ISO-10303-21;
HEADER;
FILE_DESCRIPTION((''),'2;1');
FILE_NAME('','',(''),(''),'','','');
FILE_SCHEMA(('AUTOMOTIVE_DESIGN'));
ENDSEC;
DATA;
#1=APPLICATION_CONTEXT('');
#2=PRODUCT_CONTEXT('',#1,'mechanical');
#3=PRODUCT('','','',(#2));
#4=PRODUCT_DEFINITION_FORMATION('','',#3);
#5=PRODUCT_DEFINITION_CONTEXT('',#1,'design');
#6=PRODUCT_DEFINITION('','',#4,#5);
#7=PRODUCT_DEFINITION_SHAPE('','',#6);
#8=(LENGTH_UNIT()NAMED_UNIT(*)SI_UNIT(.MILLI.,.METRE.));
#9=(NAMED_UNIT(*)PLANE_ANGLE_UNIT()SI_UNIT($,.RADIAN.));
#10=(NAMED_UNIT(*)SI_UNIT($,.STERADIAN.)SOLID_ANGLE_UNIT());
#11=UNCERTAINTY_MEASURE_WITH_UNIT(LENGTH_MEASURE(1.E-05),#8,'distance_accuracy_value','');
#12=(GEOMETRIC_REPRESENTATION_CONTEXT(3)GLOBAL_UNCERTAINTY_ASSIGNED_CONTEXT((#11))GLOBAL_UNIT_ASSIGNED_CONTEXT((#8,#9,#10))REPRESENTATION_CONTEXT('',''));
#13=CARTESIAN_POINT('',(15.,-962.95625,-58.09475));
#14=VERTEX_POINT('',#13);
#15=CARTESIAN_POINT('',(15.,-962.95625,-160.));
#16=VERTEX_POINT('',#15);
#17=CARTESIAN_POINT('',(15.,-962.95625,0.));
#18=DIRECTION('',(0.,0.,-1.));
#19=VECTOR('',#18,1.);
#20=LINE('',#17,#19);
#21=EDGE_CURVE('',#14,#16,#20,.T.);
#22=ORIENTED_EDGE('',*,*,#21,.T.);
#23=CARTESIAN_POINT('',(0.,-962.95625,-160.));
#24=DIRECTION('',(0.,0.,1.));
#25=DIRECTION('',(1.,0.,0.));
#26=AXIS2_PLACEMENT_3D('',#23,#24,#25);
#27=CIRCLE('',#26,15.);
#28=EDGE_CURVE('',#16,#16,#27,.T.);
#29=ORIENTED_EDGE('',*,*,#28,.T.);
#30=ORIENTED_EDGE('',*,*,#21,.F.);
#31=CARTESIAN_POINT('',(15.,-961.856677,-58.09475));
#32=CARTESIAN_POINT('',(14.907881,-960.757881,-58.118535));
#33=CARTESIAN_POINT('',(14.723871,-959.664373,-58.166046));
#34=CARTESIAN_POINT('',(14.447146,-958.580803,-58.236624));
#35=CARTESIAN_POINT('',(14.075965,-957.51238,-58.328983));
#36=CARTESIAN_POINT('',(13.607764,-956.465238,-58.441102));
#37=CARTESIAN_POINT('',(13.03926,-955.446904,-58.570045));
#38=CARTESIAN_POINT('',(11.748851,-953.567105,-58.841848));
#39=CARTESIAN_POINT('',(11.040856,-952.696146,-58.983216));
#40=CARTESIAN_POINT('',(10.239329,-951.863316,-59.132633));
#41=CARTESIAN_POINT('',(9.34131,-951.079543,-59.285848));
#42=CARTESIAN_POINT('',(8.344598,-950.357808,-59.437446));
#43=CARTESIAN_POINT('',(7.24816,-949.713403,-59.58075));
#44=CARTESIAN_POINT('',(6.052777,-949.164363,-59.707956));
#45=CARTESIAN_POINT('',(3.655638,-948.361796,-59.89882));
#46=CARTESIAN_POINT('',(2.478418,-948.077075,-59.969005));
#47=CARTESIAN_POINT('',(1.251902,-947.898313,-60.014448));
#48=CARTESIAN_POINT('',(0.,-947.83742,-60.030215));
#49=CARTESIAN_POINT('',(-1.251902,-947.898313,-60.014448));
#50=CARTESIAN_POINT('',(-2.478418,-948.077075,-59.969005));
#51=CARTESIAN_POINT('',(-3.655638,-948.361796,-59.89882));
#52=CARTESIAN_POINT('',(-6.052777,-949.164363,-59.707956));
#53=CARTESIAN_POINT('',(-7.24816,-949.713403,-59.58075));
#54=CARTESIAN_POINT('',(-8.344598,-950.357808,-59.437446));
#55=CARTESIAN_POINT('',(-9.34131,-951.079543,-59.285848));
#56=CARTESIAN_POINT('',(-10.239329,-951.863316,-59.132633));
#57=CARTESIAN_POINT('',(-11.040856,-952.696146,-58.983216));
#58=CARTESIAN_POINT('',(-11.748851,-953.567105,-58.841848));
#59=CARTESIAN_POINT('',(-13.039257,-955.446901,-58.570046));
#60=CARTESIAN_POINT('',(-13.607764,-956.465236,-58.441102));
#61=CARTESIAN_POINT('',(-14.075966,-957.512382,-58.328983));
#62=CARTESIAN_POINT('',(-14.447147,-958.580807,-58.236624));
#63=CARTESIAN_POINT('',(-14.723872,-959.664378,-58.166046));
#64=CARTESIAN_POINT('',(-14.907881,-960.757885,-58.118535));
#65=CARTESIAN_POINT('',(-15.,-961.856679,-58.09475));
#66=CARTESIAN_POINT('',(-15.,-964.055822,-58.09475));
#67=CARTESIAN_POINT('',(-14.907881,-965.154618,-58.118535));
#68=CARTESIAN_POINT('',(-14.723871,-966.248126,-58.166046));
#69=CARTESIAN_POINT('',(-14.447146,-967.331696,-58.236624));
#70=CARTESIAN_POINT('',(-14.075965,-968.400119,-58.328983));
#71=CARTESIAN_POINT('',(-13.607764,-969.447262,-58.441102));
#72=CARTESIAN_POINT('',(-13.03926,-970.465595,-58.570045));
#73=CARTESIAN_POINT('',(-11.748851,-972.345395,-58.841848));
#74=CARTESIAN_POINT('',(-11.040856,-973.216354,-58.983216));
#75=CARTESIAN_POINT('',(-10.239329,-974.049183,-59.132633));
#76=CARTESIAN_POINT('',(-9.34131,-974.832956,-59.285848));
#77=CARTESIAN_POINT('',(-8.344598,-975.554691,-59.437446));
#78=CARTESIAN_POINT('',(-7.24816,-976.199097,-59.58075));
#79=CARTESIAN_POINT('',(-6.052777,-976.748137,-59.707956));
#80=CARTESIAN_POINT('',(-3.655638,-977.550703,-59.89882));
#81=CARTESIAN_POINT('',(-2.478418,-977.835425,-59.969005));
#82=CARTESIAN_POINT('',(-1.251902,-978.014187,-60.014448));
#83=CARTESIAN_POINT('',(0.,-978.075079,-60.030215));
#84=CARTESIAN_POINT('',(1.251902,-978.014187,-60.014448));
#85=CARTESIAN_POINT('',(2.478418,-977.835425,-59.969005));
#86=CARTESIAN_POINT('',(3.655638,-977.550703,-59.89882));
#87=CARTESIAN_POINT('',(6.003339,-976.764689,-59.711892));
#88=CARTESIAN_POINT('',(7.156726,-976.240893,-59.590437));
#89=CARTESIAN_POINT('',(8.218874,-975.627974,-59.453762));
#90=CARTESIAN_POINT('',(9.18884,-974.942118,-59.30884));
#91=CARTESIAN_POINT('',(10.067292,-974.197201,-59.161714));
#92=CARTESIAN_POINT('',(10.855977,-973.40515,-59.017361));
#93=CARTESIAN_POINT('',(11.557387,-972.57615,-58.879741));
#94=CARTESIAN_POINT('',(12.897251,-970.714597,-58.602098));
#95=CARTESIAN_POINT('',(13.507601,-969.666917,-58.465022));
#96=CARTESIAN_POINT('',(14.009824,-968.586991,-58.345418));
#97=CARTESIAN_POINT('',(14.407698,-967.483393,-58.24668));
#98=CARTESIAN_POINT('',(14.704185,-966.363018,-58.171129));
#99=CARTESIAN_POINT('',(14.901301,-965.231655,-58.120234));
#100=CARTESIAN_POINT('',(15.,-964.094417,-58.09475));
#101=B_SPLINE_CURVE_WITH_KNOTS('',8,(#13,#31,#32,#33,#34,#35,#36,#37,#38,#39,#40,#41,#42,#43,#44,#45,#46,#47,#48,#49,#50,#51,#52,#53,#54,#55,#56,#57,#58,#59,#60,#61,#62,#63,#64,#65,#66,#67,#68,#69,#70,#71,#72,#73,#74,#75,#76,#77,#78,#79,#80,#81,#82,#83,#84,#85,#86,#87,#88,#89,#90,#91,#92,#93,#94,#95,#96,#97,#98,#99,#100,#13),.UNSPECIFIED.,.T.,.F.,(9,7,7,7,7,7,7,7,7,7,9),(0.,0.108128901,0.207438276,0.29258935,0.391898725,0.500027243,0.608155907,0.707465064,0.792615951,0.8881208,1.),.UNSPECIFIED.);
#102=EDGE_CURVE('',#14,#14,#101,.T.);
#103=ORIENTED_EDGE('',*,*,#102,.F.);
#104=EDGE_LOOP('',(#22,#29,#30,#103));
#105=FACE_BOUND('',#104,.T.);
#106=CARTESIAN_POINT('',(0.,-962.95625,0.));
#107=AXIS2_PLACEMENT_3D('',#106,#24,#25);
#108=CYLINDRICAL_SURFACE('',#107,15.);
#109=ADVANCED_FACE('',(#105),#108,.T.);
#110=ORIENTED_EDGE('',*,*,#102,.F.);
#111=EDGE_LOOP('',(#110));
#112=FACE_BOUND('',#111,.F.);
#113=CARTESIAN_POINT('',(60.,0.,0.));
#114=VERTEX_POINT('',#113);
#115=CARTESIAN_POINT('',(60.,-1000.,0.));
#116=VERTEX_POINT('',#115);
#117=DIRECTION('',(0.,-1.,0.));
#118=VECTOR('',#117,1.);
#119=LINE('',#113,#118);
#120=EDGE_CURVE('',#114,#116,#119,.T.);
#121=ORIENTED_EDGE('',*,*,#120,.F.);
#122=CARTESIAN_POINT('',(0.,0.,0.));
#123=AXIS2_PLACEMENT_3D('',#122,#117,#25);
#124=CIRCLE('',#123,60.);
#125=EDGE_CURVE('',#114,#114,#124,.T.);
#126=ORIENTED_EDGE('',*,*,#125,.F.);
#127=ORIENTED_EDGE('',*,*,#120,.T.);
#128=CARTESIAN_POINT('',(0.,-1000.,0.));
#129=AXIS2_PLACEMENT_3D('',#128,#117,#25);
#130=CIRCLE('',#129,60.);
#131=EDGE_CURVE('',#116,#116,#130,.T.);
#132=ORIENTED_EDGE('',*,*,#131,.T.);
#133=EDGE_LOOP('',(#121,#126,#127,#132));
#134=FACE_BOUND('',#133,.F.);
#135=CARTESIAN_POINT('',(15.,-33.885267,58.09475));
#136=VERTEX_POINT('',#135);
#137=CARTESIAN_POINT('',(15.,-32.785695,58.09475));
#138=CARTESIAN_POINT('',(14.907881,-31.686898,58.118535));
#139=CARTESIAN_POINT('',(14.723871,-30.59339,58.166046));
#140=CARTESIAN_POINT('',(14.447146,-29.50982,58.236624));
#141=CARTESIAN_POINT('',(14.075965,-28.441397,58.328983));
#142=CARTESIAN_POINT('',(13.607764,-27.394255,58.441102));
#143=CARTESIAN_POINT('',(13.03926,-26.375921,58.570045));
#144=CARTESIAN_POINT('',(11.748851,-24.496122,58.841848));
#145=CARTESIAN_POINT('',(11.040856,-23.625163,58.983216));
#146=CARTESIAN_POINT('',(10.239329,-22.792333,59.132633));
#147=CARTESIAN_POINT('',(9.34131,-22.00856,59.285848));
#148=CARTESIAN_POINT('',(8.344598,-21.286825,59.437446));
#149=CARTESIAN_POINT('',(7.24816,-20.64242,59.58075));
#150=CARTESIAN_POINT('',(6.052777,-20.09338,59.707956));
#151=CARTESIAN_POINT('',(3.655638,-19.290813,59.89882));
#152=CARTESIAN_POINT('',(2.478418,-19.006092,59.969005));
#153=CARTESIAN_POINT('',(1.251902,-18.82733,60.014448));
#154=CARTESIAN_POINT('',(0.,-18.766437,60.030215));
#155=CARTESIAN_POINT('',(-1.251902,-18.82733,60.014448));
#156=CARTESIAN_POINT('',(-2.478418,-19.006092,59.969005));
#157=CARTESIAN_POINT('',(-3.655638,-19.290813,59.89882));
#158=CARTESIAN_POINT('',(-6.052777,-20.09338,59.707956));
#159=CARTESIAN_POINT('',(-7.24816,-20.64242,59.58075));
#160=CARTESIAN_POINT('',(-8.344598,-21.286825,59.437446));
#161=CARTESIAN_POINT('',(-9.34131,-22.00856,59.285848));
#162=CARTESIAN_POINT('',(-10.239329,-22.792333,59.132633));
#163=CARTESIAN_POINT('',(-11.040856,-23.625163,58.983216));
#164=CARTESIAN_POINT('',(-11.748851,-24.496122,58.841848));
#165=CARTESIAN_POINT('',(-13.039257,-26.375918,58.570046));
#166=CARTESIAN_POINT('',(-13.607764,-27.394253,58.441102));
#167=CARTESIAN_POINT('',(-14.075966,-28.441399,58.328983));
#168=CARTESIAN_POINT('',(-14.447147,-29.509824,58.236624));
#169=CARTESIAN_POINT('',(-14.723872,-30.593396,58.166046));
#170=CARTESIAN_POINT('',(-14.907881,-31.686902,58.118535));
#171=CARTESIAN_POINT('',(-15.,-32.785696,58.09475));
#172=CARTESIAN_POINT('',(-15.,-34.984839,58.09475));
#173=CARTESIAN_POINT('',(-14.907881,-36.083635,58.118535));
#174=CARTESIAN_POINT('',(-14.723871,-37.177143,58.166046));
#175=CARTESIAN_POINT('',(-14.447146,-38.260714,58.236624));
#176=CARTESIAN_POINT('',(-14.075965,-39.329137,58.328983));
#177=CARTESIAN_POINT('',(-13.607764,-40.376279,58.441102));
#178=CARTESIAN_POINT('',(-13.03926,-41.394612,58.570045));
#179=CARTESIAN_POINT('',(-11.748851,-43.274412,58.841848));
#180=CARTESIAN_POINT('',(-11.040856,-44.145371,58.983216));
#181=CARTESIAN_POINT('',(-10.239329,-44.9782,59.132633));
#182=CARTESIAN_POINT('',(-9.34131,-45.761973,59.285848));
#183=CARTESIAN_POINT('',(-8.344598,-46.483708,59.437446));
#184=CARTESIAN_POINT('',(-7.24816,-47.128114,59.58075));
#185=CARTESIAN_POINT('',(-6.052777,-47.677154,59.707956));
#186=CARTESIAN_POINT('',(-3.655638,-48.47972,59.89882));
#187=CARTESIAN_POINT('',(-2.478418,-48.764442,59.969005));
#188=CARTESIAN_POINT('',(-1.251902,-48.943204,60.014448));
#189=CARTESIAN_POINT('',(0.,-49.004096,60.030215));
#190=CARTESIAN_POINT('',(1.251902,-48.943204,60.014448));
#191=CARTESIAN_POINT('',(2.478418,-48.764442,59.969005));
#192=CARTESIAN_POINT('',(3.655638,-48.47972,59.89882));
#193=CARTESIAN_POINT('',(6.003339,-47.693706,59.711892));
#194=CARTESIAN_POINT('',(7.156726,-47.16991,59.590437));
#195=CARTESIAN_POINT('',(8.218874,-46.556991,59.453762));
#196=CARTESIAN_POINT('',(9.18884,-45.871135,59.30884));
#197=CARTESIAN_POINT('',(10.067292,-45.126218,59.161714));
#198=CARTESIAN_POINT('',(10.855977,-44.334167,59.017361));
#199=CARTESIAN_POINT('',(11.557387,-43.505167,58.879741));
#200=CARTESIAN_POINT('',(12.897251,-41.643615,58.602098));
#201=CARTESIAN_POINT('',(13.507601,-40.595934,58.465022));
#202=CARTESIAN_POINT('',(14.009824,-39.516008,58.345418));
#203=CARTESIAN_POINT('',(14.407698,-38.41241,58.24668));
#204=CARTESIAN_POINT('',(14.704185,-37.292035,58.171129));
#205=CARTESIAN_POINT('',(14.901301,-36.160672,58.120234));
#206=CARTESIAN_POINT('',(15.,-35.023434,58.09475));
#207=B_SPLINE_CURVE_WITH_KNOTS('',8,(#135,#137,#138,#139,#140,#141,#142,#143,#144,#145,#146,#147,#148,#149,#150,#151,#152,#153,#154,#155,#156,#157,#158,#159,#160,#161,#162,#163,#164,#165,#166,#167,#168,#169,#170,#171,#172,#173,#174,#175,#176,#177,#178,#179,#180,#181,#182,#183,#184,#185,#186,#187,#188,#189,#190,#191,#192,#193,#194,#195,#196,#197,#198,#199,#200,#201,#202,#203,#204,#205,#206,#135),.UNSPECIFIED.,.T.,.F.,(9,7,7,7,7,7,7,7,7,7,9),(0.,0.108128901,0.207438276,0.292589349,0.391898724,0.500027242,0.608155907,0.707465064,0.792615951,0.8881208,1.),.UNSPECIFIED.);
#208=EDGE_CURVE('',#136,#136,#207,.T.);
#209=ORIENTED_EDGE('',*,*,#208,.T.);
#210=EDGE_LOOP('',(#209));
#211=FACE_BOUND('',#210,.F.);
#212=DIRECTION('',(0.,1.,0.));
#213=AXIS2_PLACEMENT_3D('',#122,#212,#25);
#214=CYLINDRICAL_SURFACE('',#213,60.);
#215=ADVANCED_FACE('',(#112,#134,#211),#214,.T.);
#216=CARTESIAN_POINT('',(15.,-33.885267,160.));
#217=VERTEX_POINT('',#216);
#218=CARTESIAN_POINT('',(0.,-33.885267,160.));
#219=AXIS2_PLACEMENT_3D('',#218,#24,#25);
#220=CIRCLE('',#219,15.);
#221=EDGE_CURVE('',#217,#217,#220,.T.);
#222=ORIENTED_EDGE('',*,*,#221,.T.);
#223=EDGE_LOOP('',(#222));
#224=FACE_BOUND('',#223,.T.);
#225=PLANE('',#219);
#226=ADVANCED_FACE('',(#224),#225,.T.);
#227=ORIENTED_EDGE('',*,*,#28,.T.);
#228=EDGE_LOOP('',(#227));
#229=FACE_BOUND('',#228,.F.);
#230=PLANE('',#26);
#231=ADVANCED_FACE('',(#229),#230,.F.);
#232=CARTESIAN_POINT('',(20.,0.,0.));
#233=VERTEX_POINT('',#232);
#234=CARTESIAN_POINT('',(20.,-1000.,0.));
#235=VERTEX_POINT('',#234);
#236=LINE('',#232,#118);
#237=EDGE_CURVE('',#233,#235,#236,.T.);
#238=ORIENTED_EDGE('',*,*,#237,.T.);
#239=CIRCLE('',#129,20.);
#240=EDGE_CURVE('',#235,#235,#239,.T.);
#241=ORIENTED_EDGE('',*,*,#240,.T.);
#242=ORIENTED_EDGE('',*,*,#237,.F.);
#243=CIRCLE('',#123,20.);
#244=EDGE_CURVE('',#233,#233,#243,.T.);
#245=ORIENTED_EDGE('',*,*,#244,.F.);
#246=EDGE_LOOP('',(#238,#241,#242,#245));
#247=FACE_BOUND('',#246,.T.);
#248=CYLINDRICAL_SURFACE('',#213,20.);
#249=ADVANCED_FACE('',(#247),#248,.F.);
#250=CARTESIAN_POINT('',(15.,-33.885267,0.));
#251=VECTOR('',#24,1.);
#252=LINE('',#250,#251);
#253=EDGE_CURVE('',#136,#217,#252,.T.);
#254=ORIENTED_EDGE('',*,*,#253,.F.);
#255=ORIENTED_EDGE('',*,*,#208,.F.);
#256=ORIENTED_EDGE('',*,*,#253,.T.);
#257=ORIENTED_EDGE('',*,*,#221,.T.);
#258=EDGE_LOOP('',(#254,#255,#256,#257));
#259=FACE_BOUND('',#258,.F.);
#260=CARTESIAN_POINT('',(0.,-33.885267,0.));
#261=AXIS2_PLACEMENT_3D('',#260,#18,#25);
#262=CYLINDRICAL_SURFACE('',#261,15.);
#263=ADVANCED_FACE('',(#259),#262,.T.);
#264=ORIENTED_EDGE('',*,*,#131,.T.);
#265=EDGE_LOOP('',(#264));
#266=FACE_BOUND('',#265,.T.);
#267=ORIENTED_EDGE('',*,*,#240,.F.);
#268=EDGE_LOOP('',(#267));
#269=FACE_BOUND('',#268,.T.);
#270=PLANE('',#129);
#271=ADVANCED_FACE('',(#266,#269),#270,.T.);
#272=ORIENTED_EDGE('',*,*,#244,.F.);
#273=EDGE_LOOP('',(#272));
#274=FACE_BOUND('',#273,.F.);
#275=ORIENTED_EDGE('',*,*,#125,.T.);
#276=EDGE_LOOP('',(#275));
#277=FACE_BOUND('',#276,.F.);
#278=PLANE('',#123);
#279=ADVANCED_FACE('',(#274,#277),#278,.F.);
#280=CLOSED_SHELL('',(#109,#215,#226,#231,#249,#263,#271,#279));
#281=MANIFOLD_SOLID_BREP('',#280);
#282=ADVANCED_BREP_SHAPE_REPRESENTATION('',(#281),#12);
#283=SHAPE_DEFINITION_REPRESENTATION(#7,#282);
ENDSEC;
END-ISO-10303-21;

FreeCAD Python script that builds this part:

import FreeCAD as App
import Part
import Sketcher

V = App.Vector

doc = App.newDocument("Part")
body = doc.addObject("PartDesign::Body", "Body")

# Sketch on XZ plane
sketch1 = body.newObject("Sketcher::SketchObject", "Sketch")
sketch1.AttachmentSupport = (doc.getObject("XZ_Plane"), [""])
sketch1.MapMode = "FlatFace"
sketch1.addGeometry(Part.Circle(V(0, 0, 0), V(0, 0, 1), 60), False)
sketch1.addConstraint(Sketcher.Constraint("Coincident", 0, 3, -1, 1))
sketch1.addConstraint(Sketcher.Constraint("Diameter", 0, 120.0))
pad1 = body.newObject("PartDesign::Pad", "Pad")
pad1.Profile = sketch1
pad1.Length = 1000

# Sketch on XY plane
sketch2 = body.newObject("Sketcher::SketchObject", "Sketch001")
sketch2.AttachmentSupport = (doc.getObject("XY_Plane"), [""])
sketch2.MapMode = "FlatFace"
sketch2.addGeometry(Part.Circle(V(0, -34, 0), V(0, 0, 1), 15), False)
sketch2.addConstraint(Sketcher.Constraint("PointOnObject", 0, 3, -2))
sketch2.addConstraint(Sketcher.Constraint("Diameter", 0, 30.0))
sketch2.addConstraint(Sketcher.Constraint("DistanceY", 0, 3, -1, 1, 33.885267))
pad2 = body.newObject("PartDesign::Pad", "Pad001")
pad2.Profile = sketch2
pad2.Length = 160

# Sketch on XY plane
sketch3 = body.newObject("Sketcher::SketchObject", "Sketch002")
sketch3.AttachmentSupport = (doc.getObject("XY_Plane"), [""])
sketch3.MapMode = "FlatFace"
sketch3.addGeometry(Part.Circle(V(0, -963, 0), V(0, 0, 1), 15), False)
sketch3.addConstraint(Sketcher.Constraint("PointOnObject", 0, 3, -2))
sketch3.addConstraint(Sketcher.Constraint("Diameter", 0, 30.0))
sketch3.addConstraint(Sketcher.Constraint("DistanceY", 0, 3, -1, 1, 962.95625))
pad3 = body.newObject("PartDesign::Pad", "Pad002")
pad3.Profile = sketch3
pad3.Length = 160
pad3.Reversed = True

# Sketch on XZ plane
sketch4 = body.newObject("Sketcher::SketchObject", "Sketch003")
sketch4.AttachmentSupport = (doc.getObject("XZ_Plane"), [""])
sketch4.MapMode = "FlatFace"
sketch4.addGeometry(Part.Circle(V(0, 0, 0), V(0, 0, 1), 20), False)
sketch4.addConstraint(Sketcher.Constraint("Coincident", 0, 3, -1, 1))
sketch4.addConstraint(Sketcher.Constraint("Diameter", 0, 40.0))
pocket1 = body.newObject("PartDesign::Pocket", "Pocket")
pocket1.Profile = sketch4
pocket1.Length = 1000
pocket1.Reversed = True

doc.recompute()
